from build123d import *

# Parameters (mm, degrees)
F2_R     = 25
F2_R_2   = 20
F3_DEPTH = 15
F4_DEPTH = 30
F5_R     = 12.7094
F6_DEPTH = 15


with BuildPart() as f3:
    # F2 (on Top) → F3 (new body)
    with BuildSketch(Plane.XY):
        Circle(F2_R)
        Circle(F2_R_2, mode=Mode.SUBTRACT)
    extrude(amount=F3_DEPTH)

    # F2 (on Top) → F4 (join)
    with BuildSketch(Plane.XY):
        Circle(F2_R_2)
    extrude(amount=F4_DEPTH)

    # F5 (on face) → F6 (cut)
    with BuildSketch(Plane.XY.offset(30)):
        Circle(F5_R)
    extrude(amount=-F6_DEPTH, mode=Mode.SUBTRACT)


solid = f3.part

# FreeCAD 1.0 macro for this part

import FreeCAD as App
import Part
import Sketcher

doc = App.newDocument("Part")
body = doc.addObject("PartDesign::Body", "Body")

# Sketch on XY plane
sketch1 = doc.addObject("Sketcher::SketchObject", "Sketch")
body.addObject(sketch1)
sketch1.AttachmentSupport = (doc.XY_Plane, [""])
sketch1.MapMode = "FlatFace"
sketch1.addGeometry([
    Part.Circle(App.Vector(0, 0, 0), App.Vector(0, 0, 1), 25),
    Part.Circle(App.Vector(0, 0, 0), App.Vector(0, 0, 1), 20),
], False)
sketch1.addConstraint([
    Sketcher.Constraint("Coincident", 0, 3, -1, 1),
    Sketcher.Constraint("Coincident", 1, 3, -1, 1),
    Sketcher.Constraint("Diameter", 0, 50.0),
    Sketcher.Constraint("Diameter", 1, 40.0),
])
pad1 = doc.addObject("PartDesign::Pad", "Pad")
body.addObject(pad1)
pad1.Profile = sketch1
pad1.Length = 15

# Sketch on XY plane
sketch2 = doc.addObject("Sketcher::SketchObject", "Sketch001")
body.addObject(sketch2)
sketch2.AttachmentSupport = (doc.XY_Plane, [""])
sketch2.MapMode = "FlatFace"
sketch2.addGeometry(Part.Circle(App.Vector(0, 0, 0), App.Vector(0, 0, 1), 20), False)
sketch2.addConstraint([
    Sketcher.Constraint("Coincident", 0, 3, -1, 1),
    Sketcher.Constraint("Diameter", 0, 40.0),
])
pad2 = doc.addObject("PartDesign::Pad", "Pad001")
body.addObject(pad2)
pad2.Profile = sketch2
pad2.Length = 30

# Sketch on XY plane
sketch3 = doc.addObject("Sketcher::SketchObject", "Sketch002")
body.addObject(sketch3)
sketch3.AttachmentSupport = (doc.XY_Plane, [""])
sketch3.MapMode = "FlatFace"
sketch3.AttachmentOffset = App.Placement(App.Vector(0, 0, 30), App.Rotation())
sketch3.addGeometry(Part.Circle(App.Vector(0, 0, 0), App.Vector(0, 0, 1), 12.7094), False)
sketch3.addConstraint([
    Sketcher.Constraint("Coincident", 0, 3, -1, 1),
    Sketcher.Constraint("Diameter", 0, 25.4188),
])
pocket1 = doc.addObject("PartDesign::Pocket", "Pocket")
body.addObject(pocket1)
pocket1.Profile = sketch3
pocket1.Length = 15

doc.recompute()
